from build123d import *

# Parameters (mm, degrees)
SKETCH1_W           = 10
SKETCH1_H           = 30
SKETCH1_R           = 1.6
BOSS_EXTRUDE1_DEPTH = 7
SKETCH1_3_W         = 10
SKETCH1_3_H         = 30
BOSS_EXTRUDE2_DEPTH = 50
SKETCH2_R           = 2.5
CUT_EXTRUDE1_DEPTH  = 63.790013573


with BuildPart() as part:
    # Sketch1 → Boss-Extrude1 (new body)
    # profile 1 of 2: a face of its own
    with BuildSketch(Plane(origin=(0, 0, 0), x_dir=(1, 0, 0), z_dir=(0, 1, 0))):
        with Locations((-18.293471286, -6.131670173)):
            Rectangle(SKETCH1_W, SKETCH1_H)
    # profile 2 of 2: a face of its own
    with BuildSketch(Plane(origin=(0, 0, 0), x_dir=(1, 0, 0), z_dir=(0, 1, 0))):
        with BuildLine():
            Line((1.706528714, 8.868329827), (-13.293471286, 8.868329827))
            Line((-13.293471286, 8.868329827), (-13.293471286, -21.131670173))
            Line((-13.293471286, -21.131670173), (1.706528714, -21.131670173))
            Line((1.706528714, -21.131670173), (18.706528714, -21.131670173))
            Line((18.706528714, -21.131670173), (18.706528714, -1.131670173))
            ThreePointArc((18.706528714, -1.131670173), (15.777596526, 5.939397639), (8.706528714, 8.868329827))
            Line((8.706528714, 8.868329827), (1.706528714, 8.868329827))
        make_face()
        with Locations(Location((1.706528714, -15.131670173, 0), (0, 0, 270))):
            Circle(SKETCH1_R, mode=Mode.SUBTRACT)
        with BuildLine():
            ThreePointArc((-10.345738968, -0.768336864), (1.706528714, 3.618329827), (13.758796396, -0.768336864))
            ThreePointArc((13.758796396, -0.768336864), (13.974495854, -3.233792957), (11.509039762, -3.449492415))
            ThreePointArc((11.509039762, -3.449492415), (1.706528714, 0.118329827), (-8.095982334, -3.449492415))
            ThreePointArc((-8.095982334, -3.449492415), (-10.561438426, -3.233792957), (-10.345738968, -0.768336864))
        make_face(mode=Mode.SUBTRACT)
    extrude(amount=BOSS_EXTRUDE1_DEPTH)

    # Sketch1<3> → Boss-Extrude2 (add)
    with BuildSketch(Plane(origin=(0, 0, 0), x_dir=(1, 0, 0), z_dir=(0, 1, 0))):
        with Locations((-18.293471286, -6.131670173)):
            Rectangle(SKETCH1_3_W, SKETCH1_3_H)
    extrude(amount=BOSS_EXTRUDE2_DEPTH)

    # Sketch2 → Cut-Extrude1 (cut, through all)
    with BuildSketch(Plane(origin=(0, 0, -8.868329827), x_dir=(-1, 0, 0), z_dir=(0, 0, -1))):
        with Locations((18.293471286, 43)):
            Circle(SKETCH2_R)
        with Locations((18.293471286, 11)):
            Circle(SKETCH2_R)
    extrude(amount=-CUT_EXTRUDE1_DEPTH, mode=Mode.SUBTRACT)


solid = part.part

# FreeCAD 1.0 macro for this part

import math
import FreeCAD as App
import Part
import Sketcher

V = App.Vector


def add_polygon(sketch, points):
    """Adds a closed chain of lines whose ends are joined by coincident constraints."""
    first, n = sketch.GeometryCount, len(points)
    for a, b in zip(points, points[1:] + points[:1]):
        sketch.addGeometry(Part.LineSegment(App.Vector(*a, 0), App.Vector(*b, 0)), False)
    for i in range(n):
        sketch.addConstraint(Sketcher.Constraint("Coincident", first + i, 2, first + (i + 1) % n, 1))

doc = App.newDocument("Part")
body = doc.addObject("PartDesign::Body", "Body")

sketch1 = body.newObject("Sketcher::SketchObject", "Sketch")
sketch1.AttachmentSupport = (doc.getObject("XZ_Plane"), [""])
sketch1.MapMode = "FlatFace"
sketch1.addGeometry([
    Part.LineSegment(V(-23.3, -8.9, 0), V(-23.3, 21.1, 0)),
    Part.LineSegment(V(-23.3, 21.1, 0), V(18.7, 21.1, 0)),
    Part.LineSegment(V(18.7, 21.1, 0), V(18.7, 1.1, 0)),
    Part.ArcOfCircle(Part.Circle(V(8.7, 1.1, 0), V(0, 0, 1), 10), math.radians(-90), math.radians(0)),
    Part.LineSegment(V(8.7, -8.9, 0), V(-23.3, -8.9, 0)),
    Part.ArcOfCircle(Part.Circle(V(1.7, 15.1, 0), V(0, 0, 1), 18.8), math.radians(-130), math.radians(-50)),
    Part.ArcOfCircle(Part.Circle(V(12.6, 2.1, 0), V(0, 0, 1), 1.8), math.radians(-50), math.radians(130)),
    Part.ArcOfCircle(Part.Circle(V(1.7, 15.1, 0), V(0, 0, 1), 15.3), math.radians(-130), math.radians(-50)),
    Part.ArcOfCircle(Part.Circle(V(-9.2, 2.1, 0), V(0, 0, 1), 1.8), math.radians(50), math.radians(230)),
    Part.Circle(V(1.7, 15.1, 0), V(0, 0, 1), 1.6),
], False)
sketch1.addConstraint([
    Sketcher.Constraint("Coincident", 0, 2, 1, 1),
    Sketcher.Constraint("Coincident", 1, 2, 2, 1),
    Sketcher.Constraint("Tangent", 2, 2, 3, 2),
    Sketcher.Constraint("Tangent", 3, 1, 4, 1),
    Sketcher.Constraint("Coincident", 4, 2, 0, 1),
    Sketcher.Constraint("Tangent", 5, 2, 6, 1),
    Sketcher.Constraint("Tangent", 6, 2, 7, 2),
    Sketcher.Constraint("Tangent", 7, 1, 8, 1),
    Sketcher.Constraint("Tangent", 8, 2, 5, 1),
    Sketcher.Constraint("Vertical", 0),
    Sketcher.Constraint("Horizontal", 1),
    Sketcher.Constraint("Vertical", 2),
    Sketcher.Constraint("Horizontal", 4),
    Sketcher.Constraint("Coincident", 7, 3, 5, 3),
    Sketcher.Constraint("Coincident", 9, 3, 5, 3),
    Sketcher.Constraint("Horizontal", 6, 3, 8, 3),
    Sketcher.Constraint("Radius", 3, 10.0),
    Sketcher.Constraint("Diameter", 9, 3.2),
    Sketcher.Constraint("DistanceX", 1, 1, 1, 2, 42.0),
    Sketcher.Constraint("DistanceY", 0, 1, 0, 2, 30.0),
    Sketcher.Constraint("Radius", 5, 18.75),
    Sketcher.Constraint("Radius", 6, 1.75),
    Sketcher.Constraint("DistanceX", 5, 3, 3, 3, 7.0),
    Sketcher.Constraint("DistanceY", 3, 3, 5, 3, 14.0),
    Sketcher.Constraint("DistanceX", -1, 1, 3, 3, 8.706529),
    Sketcher.Constraint("DistanceY", -1, 1, 3, 3, 1.13167),
    Sketcher.Constraint("DistanceX", -1, 1, 6, 3, 12.633918),
])
pad1 = body.newObject("PartDesign::Pad", "Pad")
pad1.Profile = sketch1
pad1.Length = 7
pad1.Reversed = True

sketch2 = body.newObject("Sketcher::SketchObject", "Sketch001")
sketch2.AttachmentSupport = (doc.getObject("XZ_Plane"), [""])
sketch2.MapMode = "FlatFace"
add_polygon(sketch2, [(-23, -9), (-23, 21), (-13, 21), (-13, -9)])
sketch2.addConstraint([
    Sketcher.Constraint("Vertical", 0),
    Sketcher.Constraint("Horizontal", 1),
    Sketcher.Constraint("Vertical", 2),
    Sketcher.Constraint("Horizontal", 3),
    Sketcher.Constraint("DistanceX", 1, 1, 1, 2, 10.0),
    Sketcher.Constraint("DistanceY", 0, 1, 0, 2, 30.0),
    Sketcher.Constraint("DistanceX", 0, 2, -1, 1, 23.293471),
    Sketcher.Constraint("DistanceY", -1, 1, 0, 2, 21.13167),
])
pad2 = body.newObject("PartDesign::Pad", "Pad001")
pad2.Profile = sketch2
pad2.Length = 50
pad2.Reversed = True

sketch3 = body.newObject("Sketcher::SketchObject", "Sketch002")
sketch3.AttachmentSupport = (doc.getObject("XY_Plane"), [""])
sketch3.MapMode = "FlatFace"
sketch3.AttachmentOffset = App.Placement(V(0, 0, -8.86833), App.Rotation())
sketch3.addGeometry([
    Part.Circle(V(-18.3, 43, 0), V(0, 0, 1), 2.5),
    Part.Circle(V(-18.3, 11, 0), V(0, 0, 1), 2.5),
], False)
sketch3.addConstraint([
    Sketcher.Constraint("Equal", 0, 1),
    Sketcher.Constraint("Vertical", 0, 3, 1, 3),
    Sketcher.Constraint("Diameter", 0, 5.0),
    Sketcher.Constraint("DistanceY", -1, 1, 0, 3, 43.0),
    Sketcher.Constraint("DistanceY", -1, 1, 1, 3, 11.0),
    Sketcher.Constraint("DistanceX", 0, 3, -1, 1, 18.293471),
])
pocket1 = body.newObject("PartDesign::Pocket", "Pocket")
pocket1.Profile = sketch3
pocket1.Type = "ThroughAll"
pocket1.Reversed = True

doc.recompute()
